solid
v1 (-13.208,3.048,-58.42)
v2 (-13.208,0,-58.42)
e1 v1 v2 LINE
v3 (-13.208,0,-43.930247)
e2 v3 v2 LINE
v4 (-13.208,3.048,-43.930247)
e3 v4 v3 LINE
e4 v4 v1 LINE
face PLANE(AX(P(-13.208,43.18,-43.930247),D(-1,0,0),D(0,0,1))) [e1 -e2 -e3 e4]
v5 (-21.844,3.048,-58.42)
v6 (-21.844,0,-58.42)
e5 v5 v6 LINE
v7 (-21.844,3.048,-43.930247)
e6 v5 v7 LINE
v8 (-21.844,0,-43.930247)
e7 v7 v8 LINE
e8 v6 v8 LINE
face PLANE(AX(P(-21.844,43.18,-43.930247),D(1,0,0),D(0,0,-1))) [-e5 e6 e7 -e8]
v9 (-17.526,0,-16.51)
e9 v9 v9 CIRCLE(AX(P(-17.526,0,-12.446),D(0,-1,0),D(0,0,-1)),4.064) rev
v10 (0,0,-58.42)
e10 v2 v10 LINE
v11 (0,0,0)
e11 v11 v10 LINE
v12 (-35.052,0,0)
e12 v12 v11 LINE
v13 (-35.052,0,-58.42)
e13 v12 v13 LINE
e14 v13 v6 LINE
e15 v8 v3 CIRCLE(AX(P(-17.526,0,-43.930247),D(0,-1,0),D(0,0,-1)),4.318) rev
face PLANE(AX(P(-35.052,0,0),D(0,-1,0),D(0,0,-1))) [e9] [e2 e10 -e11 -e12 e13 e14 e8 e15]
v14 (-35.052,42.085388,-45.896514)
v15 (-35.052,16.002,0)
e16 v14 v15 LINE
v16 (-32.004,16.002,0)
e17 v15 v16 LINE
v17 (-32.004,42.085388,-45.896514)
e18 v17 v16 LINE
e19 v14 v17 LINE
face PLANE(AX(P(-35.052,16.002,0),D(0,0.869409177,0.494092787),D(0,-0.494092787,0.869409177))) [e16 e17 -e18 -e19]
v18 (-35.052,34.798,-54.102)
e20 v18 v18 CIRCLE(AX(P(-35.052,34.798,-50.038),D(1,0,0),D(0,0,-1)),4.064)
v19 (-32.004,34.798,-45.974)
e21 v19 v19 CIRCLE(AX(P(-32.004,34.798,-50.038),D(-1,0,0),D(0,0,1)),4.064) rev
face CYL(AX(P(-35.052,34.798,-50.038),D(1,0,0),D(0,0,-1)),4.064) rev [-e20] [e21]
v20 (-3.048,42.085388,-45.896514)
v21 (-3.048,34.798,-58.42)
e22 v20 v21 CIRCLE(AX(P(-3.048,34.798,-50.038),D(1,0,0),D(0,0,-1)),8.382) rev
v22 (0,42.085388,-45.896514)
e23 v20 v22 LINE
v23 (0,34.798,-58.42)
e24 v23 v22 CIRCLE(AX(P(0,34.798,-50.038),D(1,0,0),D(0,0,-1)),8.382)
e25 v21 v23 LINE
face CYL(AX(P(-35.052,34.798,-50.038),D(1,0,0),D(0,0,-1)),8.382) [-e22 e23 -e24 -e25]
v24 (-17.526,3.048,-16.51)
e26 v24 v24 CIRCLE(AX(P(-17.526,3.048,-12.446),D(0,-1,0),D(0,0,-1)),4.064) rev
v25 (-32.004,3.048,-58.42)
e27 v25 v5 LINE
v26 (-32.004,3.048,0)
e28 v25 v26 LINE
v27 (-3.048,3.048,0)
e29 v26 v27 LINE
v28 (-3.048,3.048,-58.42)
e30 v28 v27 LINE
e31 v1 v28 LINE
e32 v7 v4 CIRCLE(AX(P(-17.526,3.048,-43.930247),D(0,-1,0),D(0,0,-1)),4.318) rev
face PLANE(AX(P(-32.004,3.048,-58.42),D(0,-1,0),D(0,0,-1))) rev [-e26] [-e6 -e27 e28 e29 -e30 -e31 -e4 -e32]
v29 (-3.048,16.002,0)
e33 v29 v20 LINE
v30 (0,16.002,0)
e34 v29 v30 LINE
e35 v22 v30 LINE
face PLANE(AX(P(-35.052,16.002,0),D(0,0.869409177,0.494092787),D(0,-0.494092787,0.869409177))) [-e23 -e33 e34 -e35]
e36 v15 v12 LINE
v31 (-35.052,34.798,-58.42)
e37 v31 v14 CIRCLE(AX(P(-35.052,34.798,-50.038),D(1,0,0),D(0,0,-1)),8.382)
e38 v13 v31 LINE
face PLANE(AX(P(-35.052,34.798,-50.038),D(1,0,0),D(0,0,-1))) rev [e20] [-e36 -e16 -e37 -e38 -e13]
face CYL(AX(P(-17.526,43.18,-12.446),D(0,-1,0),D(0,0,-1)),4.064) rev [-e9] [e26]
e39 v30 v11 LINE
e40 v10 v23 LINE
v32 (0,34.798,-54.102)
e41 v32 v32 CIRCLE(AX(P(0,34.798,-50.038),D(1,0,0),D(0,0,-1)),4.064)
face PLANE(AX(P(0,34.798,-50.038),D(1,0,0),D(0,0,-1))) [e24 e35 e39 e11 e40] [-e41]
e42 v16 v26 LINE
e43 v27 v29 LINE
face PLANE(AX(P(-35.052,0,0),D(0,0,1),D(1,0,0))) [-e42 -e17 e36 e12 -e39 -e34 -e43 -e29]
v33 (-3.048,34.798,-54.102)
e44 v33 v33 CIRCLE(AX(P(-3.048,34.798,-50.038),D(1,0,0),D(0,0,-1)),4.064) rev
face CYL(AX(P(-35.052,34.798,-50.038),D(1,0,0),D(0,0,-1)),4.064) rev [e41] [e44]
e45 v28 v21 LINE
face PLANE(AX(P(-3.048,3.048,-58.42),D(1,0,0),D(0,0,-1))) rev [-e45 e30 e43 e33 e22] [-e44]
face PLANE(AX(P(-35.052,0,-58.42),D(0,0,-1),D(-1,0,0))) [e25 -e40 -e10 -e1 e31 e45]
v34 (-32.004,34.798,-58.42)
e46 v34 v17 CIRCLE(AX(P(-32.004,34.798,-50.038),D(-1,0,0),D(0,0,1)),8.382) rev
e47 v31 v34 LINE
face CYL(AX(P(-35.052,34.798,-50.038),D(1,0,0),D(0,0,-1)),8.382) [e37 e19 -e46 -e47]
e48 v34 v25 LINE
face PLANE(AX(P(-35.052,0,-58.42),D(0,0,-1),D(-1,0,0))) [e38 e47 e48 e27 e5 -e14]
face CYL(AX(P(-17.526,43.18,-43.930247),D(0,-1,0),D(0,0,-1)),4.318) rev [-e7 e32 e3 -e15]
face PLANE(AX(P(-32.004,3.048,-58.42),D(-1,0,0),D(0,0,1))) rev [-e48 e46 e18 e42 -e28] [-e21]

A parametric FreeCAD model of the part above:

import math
import FreeCAD as App
import Part
import Sketcher
from FreeCAD import Vector
Q = App.Units.Quantity


def add_polygon(sketch, points):
    """Adds a closed chain of lines whose ends are joined by coincident constraints."""
    first, n = sketch.GeometryCount, len(points)
    for a, b in zip(points, points[1:] + points[:1]):
        sketch.addGeometry(Part.LineSegment(App.Vector(*a, 0), App.Vector(*b, 0)), False)
    for i in range(n):
        sketch.addConstraint(Sketcher.Constraint("Coincident", first + i, 2, first + (i + 1) % n, 1))

doc = App.newDocument("Part")
params = doc.addObject("Spreadsheet::Sheet", "Params")
for row, (alias, value) in enumerate([
    ("sketch1_diameter", "0.32 in"),
    ("sketch1_radius", "0.33 in"),
    ("sketch1_height", "2.3 in"),
    ("sketch1_width", "0.63 in"),
    ("sketch1_width2", "1.37 in"),
    ("pad1_length", "1.38 in"),
    ("sketch2_width", "1.14 in"),
    ("sketch2_height", "1.58 in"),
    ("sketch3_diameter", "0.32 in"),
    ("sketch3_radius", "0.17 in"),
], start=1):
    params.set(f"A{row}", alias)
    params.set(f"B{row}", "=" + value)
    params.setAlias(f"B{row}", alias)

body = doc.addObject("PartDesign::Body", "Body")

# Sketch on YZ plane
sketch1 = body.newObject("Sketcher::SketchObject", "Sketch")
sketch1.AttachmentSupport = (doc.getObject("YZ_Plane"), [""])
sketch1.MapMode = "FlatFace"
sketch1.addGeometry([
    Part.LineSegment(Vector(42.1, -45.9, 0), Vector(16, 0, 0)),  # 0
    Part.LineSegment(Vector(16, 0, 0), Vector(0, 0, 0)),  # 1
    Part.LineSegment(Vector(0, 0, 0), Vector(0, -58.4, 0)),  # 2
    Part.LineSegment(Vector(0, -58.4, 0), Vector(34.8, -58.4, 0)),  # 3
    Part.ArcOfCircle(Part.Circle(Vector(34.8, -50, 0), Vector(0, 0, 1), 8.4), math.radians(-90), math.radians(30)),  # 4
    Part.Circle(Vector(34.8, -50, 0), Vector(0, 0, 1), 4.1),  # 5
], False)
sketch1.addConstraint([
    Sketcher.Constraint("Coincident", 0, 2, 1, 1),
    Sketcher.Constraint("Coincident", 1, 2, 2, 1),
    Sketcher.Constraint("Coincident", 2, 2, 3, 1),
    Sketcher.Constraint("Tangent", 3, 2, 4, 1),
    Sketcher.Constraint("Tangent", 4, 2, 0, 1),
    Sketcher.Constraint("Horizontal", 1),
    Sketcher.Constraint("Vertical", 2),
    Sketcher.Constraint("Horizontal", 3),
    Sketcher.Constraint("Coincident", 1, 2, -1, 1),
    Sketcher.Constraint("Coincident", 5, 3, 4, 3),
    Sketcher.Constraint("Diameter", 5, Q("0.32 in")),
    Sketcher.Constraint("Radius", 4, Q("0.33 in")),
    Sketcher.Constraint("DistanceY", 2, 2, 2, 1, Q("2.3 in")),
    Sketcher.Constraint("DistanceX", 1, 2, 1, 1, Q("0.63 in")),
    Sketcher.Constraint("DistanceX", 3, 1, 3, 2, Q("1.37 in")),
])
sketch1.setExpression("Constraints[10]", "Params.sketch1_diameter")
sketch1.setExpression("Constraints[11]", "Params.sketch1_radius")
sketch1.setExpression("Constraints[12]", "Params.sketch1_height")
sketch1.setExpression("Constraints[13]", "Params.sketch1_width")
sketch1.setExpression("Constraints[14]", "Params.sketch1_width2")
pad1 = body.newObject("PartDesign::Pad", "Pad")
pad1.Profile = sketch1
pad1.setExpression("Length", "Params.pad1_length")
pad1.Reversed = True

# Sketch on XY plane
sketch2 = body.newObject("Sketcher::SketchObject", "Sketch001")
sketch2.AttachmentSupport = (doc.getObject("XY_Plane"), [""])
sketch2.MapMode = "FlatFace"
add_polygon(sketch2, [(-32, 43), (-32, 3), (-3, 3), (-3, 43)])  # lines 0-3
sketch2.addConstraint([
    Sketcher.Constraint("Vertical", 0),
    Sketcher.Constraint("Horizontal", 1),
    Sketcher.Constraint("Vertical", 2),
    Sketcher.Constraint("Horizontal", 3),
    Sketcher.Constraint("DistanceX", 1, 1, 1, 2, Q("1.14 in")),
    Sketcher.Constraint("DistanceY", 0, 2, 0, 1, Q("1.58 in")),
    Sketcher.Constraint("DistanceY", -1, 1, 2, 2, Q("1.7 in")),
    Sketcher.Constraint("DistanceX", 0, 2, -1, 1, Q("1.26 in")),
])
sketch2.setExpression("Constraints[8]", "Params.sketch2_width")
sketch2.setExpression("Constraints[9]", "Params.sketch2_height")
pocket1 = body.newObject("PartDesign::Pocket", "Pocket")
pocket1.Profile = sketch2
pocket1.Type = "ThroughAll"

# Sketch on XZ plane
sketch3 = body.newObject("Sketcher::SketchObject", "Sketch002")
sketch3.AttachmentSupport = (doc.getObject("XZ_Plane"), [""])
sketch3.MapMode = "FlatFace"
sketch3.addGeometry([
    Part.Circle(Vector(-17.5, -12.4, 0), Vector(0, 0, 1), 4.1),  # 0
    Part.LineSegment(Vector(-21.8, -58.4, 0), Vector(-21.8, -43.9, 0)),  # 1
    Part.ArcOfCircle(Part.Circle(Vector(-17.5, -43.9, 0), Vector(0, 0, 1), 4.3), math.radians(0), math.radians(180)),  # 2
    Part.LineSegment(Vector(-13.2, -43.9, 0), Vector(-13.2, -58.4, 0)),  # 3
    Part.LineSegment(Vector(-13.2, -58.4, 0), Vector(-21.8, -58.4, 0)),  # 4
], False)
sketch3.addConstraint([
    Sketcher.Constraint("Tangent", 1, 2, 2, 2),
    Sketcher.Constraint("Tangent", 2, 1, 3, 1),
    Sketcher.Constraint("Coincident", 3, 2, 4, 1),
    Sketcher.Constraint("Coincident", 4, 2, 1, 1),
    Sketcher.Constraint("Vertical", 1),
    Sketcher.Constraint("Vertical", 3),
    Sketcher.Constraint("Horizontal", 4),
    Sketcher.Constraint("Vertical", 0, 3, 2, 3),
    Sketcher.Constraint("Diameter", 0, Q("0.32 in")),
    Sketcher.Constraint("Radius", 2, Q("0.17 in")),
    Sketcher.Constraint("DistanceY", 3, 2, -1, 1, Q("2.3 in")),
    Sketcher.Constraint("DistanceX", 0, 3, -1, 1, Q("0.69 in")),
    Sketcher.Constraint("DistanceY", 0, 3, -1, 1, Q("0.49 in")),
    Sketcher.Constraint("DistanceY", 1, 1, 1, 2, 14.489753),
])
sketch3.setExpression("Constraints[8]", "Params.sketch3_diameter")
sketch3.setExpression("Constraints[9]", "Params.sketch3_radius")
pocket2 = body.newObject("PartDesign::Pocket", "Pocket001")
pocket2.Profile = sketch3
pocket2.Type = "ThroughAll"
pocket2.Midplane = True

doc.recompute()
